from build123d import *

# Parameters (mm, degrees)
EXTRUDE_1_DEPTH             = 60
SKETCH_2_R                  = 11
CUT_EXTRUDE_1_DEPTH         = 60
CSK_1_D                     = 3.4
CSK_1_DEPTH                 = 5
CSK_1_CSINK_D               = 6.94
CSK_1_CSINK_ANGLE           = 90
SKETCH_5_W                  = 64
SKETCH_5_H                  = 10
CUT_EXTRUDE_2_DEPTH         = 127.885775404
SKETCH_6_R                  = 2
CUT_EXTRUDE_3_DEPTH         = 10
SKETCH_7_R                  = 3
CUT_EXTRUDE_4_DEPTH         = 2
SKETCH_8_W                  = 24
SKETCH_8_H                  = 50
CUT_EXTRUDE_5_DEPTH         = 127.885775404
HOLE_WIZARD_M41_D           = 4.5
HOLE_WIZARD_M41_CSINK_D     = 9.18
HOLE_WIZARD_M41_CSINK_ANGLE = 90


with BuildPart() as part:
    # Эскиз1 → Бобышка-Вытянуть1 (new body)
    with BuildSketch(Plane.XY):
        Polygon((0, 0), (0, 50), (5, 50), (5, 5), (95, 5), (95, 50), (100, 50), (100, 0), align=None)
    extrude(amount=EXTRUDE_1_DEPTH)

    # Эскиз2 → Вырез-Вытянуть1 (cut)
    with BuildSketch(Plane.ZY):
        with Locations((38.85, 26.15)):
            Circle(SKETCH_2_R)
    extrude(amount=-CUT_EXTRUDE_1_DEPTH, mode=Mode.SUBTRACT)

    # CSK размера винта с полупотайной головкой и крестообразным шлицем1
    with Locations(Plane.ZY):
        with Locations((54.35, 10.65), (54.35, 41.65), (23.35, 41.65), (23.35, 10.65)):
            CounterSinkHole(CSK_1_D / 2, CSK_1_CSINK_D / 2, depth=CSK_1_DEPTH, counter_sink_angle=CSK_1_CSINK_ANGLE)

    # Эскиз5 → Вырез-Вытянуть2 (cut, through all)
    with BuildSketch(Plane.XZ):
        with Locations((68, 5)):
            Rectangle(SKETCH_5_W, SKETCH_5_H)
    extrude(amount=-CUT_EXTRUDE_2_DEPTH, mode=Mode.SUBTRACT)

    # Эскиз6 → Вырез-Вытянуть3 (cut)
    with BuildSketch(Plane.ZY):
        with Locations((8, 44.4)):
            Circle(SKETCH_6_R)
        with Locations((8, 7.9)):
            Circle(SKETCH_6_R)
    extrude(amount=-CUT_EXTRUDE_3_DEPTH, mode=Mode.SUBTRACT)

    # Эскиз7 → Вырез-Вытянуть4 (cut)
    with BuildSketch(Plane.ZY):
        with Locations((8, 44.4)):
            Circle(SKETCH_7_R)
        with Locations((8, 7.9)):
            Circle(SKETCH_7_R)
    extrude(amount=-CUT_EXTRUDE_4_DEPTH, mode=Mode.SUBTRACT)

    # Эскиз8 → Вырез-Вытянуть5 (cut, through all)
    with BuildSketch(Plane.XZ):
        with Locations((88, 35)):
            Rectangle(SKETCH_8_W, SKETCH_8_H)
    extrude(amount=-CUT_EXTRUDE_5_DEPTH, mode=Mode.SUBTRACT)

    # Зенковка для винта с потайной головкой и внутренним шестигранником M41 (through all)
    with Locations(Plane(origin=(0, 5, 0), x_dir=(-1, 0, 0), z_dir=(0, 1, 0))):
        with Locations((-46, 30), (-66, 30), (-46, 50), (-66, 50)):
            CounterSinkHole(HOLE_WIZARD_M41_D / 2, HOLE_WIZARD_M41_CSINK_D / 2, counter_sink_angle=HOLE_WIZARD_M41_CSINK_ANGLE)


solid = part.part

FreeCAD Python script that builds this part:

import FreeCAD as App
import Part
import Sketcher
from FreeCAD import Vector

doc = App.newDocument("Part")
body = doc.addObject("PartDesign::Body", "Body")

# Sketch on XY plane
sketch1 = body.newObject("Sketcher::SketchObject", "Sketch")
sketch1.AttachmentSupport = (doc.getObject("XY_Plane"), [""])
sketch1.MapMode = "FlatFace"
sketch1.addGeometry([
    Part.LineSegment(Vector(0, 50, 0), Vector(0, 0, 0)),  # 0
    Part.LineSegment(Vector(0, 0, 0), Vector(100, 0, 0)),  # 1
    Part.LineSegment(Vector(100, 0, 0), Vector(100, 50, 0)),  # 2
    Part.LineSegment(Vector(100, 50, 0), Vector(95, 50, 0)),  # 3
    Part.LineSegment(Vector(95, 50, 0), Vector(95, 5, 0)),  # 4
    Part.LineSegment(Vector(95, 5, 0), Vector(5, 5, 0)),  # 5
    Part.LineSegment(Vector(5, 5, 0), Vector(5, 50, 0)),  # 6
    Part.LineSegment(Vector(5, 50, 0), Vector(0, 50, 0)),  # 7
], False)
sketch1.addConstraint([
    Sketcher.Constraint("Coincident", 0, 2, 1, 1),
    Sketcher.Constraint("Coincident", 1, 2, 2, 1),
    Sketcher.Constraint("Coincident", 2, 2, 3, 1),
    Sketcher.Constraint("Coincident", 3, 2, 4, 1),
    Sketcher.Constraint("Coincident", 4, 2, 5, 1),
    Sketcher.Constraint("Coincident", 5, 2, 6, 1),
    Sketcher.Constraint("Coincident", 6, 2, 7, 1),
    Sketcher.Constraint("Coincident", 7, 2, 0, 1),
    Sketcher.Constraint("Vertical", 0),
    Sketcher.Constraint("Horizontal", 1),
    Sketcher.Constraint("Vertical", 2),
    Sketcher.Constraint("Horizontal", 3),
    Sketcher.Constraint("Vertical", 4),
    Sketcher.Constraint("Horizontal", 5),
    Sketcher.Constraint("Vertical", 6),
    Sketcher.Constraint("Horizontal", 7),
    Sketcher.Constraint("Coincident", 0, 2, -1, 1),
    Sketcher.Constraint("Horizontal", 3, 2, 6, 2),
    Sketcher.Constraint("Equal", 3, 7),
    Sketcher.Constraint("DistanceX", 1, 1, 1, 2, 100.0),
    Sketcher.Constraint("DistanceX", 3, 2, 3, 1, 5.0),
    Sketcher.Constraint("DistanceY", 0, 2, 0, 1, 50.0),
    Sketcher.Constraint("DistanceY", 4, 2, 4, 1, 45.0),
])
pad1 = body.newObject("PartDesign::Pad", "Pad")
pad1.Profile = sketch1
pad1.Length = 60

# Sketch on YZ plane
sketch2 = body.newObject("Sketcher::SketchObject", "Sketch001")
sketch2.AttachmentSupport = (doc.getObject("YZ_Plane"), [""])
sketch2.MapMode = "FlatFace"
sketch2.addGeometry(Part.Circle(Vector(26.15, 38.85, 0), Vector(0, 0, 1), 11), False)
sketch2.addConstraint([
    Sketcher.Constraint("Diameter", 0, 22.0),
    Sketcher.Constraint("DistanceX", -1, 1, 0, 3, 26.15),
    Sketcher.Constraint("DistanceY", -1, 1, 0, 3, 38.85),
])
pocket1 = body.newObject("PartDesign::Pocket", "Pocket")
pocket1.Profile = sketch2
pocket1.Length = 60
pocket1.Reversed = True

# Sketch on YZ plane
sketch3 = body.newObject("Sketcher::SketchObject", "Sketch002")
sketch3.AttachmentSupport = (doc.getObject("YZ_Plane"), [""])
sketch3.MapMode = "FlatFace"
sketch3.addGeometry([
    Part.Circle(Vector(10.65, 54.35, 0), Vector(0, 0, 1), 1.7),
    Part.Circle(Vector(41.65, 54.35, 0), Vector(0, 0, 1), 1.7),
    Part.Circle(Vector(41.65, 23.35, 0), Vector(0, 0, 1), 1.7),
    Part.Circle(Vector(10.65, 23.35, 0), Vector(0, 0, 1), 1.7),
], False)
sketch3.addConstraint([
    Sketcher.Constraint("Equal", 0, 1),
    Sketcher.Constraint("Equal", 1, 2),
    Sketcher.Constraint("Equal", 2, 3),
    Sketcher.Constraint("Horizontal", 0, 3, 1, 3),
    Sketcher.Constraint("Horizontal", 2, 3, 3, 3),
    Sketcher.Constraint("Vertical", 1, 3, 2, 3),
    Sketcher.Constraint("Vertical", 0, 3, 3, 3),
    Sketcher.Constraint("Diameter", 0, 3.4),
    Sketcher.Constraint("DistanceX", 0, 3, 1, 3, 31.0),
    Sketcher.Constraint("DistanceY", 2, 3, 1, 3, 31.0),
    Sketcher.Constraint("DistanceX", -1, 1, 0, 3, 10.65),
    Sketcher.Constraint("DistanceY", -1, 1, 0, 3, 54.35),
])
doc.recompute()
hole = body.newObject("PartDesign::Hole", "Hole")
hole.Profile = sketch3
hole.ThreadType = "None"
hole.Diameter = 3.4
hole.DepthType = "Dimension"
hole.Depth = 5
hole.DrillPoint = "Flat"
hole.HoleCutType = "Countersink"
hole.HoleCutDiameter = 6.94
hole.HoleCutCountersinkAngle = 90
hole.Reversed = True

# Sketch on XZ plane
sketch4 = body.newObject("Sketcher::SketchObject", "Sketch003")
sketch4.AttachmentSupport = (doc.getObject("XZ_Plane"), [""])
sketch4.MapMode = "FlatFace"
sketch4.addGeometry([
    Part.LineSegment(Vector(36, 10, 0), Vector(36, 0, 0)),
    Part.LineSegment(Vector(36, 0, 0), Vector(100, 0, 0)),
    Part.LineSegment(Vector(100, 0, 0), Vector(100, 10, 0)),
    Part.LineSegment(Vector(100, 10, 0), Vector(36, 10, 0)),
], False)
sketch4.addConstraint([
    Sketcher.Constraint("Coincident", 0, 2, 1, 1),
    Sketcher.Constraint("Coincident", 1, 2, 2, 1),
    Sketcher.Constraint("Coincident", 2, 2, 3, 1),
    Sketcher.Constraint("Coincident", 3, 2, 0, 1),
    Sketcher.Constraint("Vertical", 0),
    Sketcher.Constraint("Horizontal", 1),
    Sketcher.Constraint("Vertical", 2),
    Sketcher.Constraint("Horizontal", 3),
    Sketcher.Constraint("PointOnObject", 0, 2, -1),
    Sketcher.Constraint("DistanceX", 1, 1, 1, 2, 64.0),
    Sketcher.Constraint("DistanceY", 0, 2, 0, 1, 10.0),
    Sketcher.Constraint("DistanceX", -1, 1, 0, 2, 36.0),
])
pocket2 = body.newObject("PartDesign::Pocket", "Pocket001")
pocket2.Profile = sketch4
pocket2.Type = "ThroughAll"

# Sketch on YZ plane
sketch5 = body.newObject("Sketcher::SketchObject", "Sketch004")
sketch5.AttachmentSupport = (doc.getObject("YZ_Plane"), [""])
sketch5.MapMode = "FlatFace"
sketch5.addGeometry([
    Part.Circle(Vector(44.4, 8, 0), Vector(0, 0, 1), 2),
    Part.Circle(Vector(7.9, 8, 0), Vector(0, 0, 1), 2),
], False)
sketch5.addConstraint([
    Sketcher.Constraint("Equal", 0, 1),
    Sketcher.Constraint("Horizontal", 0, 3, 1, 3),
    Sketcher.Constraint("Diameter", 0, 4.0),
    Sketcher.Constraint("DistanceY", -1, 1, 0, 3, 8.0),
    Sketcher.Constraint("DistanceX", -1, 1, 0, 3, 44.4),
    Sketcher.Constraint("DistanceX", -1, 1, 1, 3, 7.9),
])
pocket3 = body.newObject("PartDesign::Pocket", "Pocket002")
pocket3.Profile = sketch5
pocket3.Length = 10
pocket3.Reversed = True

# Sketch on YZ plane
sketch6 = body.newObject("Sketcher::SketchObject", "Sketch005")
sketch6.AttachmentSupport = (doc.getObject("YZ_Plane"), [""])
sketch6.MapMode = "FlatFace"
sketch6.addGeometry([
    Part.Circle(Vector(44.4, 8, 0), Vector(0, 0, 1), 3),
    Part.Circle(Vector(7.9, 8, 0), Vector(0, 0, 1), 3),
], False)
sketch6.addConstraint([
    Sketcher.Constraint("Equal", 0, 1),
    Sketcher.Constraint("Horizontal", 0, 3, 1, 3),
    Sketcher.Constraint("Diameter", 0, 6.0),
    Sketcher.Constraint("DistanceY", -1, 1, 0, 3, 8.0),
    Sketcher.Constraint("DistanceX", -1, 1, 0, 3, 44.4),
    Sketcher.Constraint("DistanceX", -1, 1, 1, 3, 7.9),
])
pocket4 = body.newObject("PartDesign::Pocket", "Pocket003")
pocket4.Profile = sketch6
pocket4.Length = 2
pocket4.Reversed = True

# Sketch on XZ plane
sketch7 = body.newObject("Sketcher::SketchObject", "Sketch006")
sketch7.AttachmentSupport = (doc.getObject("XZ_Plane"), [""])
sketch7.MapMode = "FlatFace"
sketch7.addGeometry([
    Part.LineSegment(Vector(76, 60, 0), Vector(76, 10, 0)),
    Part.LineSegment(Vector(76, 10, 0), Vector(100, 10, 0)),
    Part.LineSegment(Vector(100, 10, 0), Vector(100, 60, 0)),
    Part.LineSegment(Vector(100, 60, 0), Vector(76, 60, 0)),
], False)
sketch7.addConstraint([
    Sketcher.Constraint("Coincident", 0, 2, 1, 1),
    Sketcher.Constraint("Coincident", 1, 2, 2, 1),
    Sketcher.Constraint("Coincident", 2, 2, 3, 1),
    Sketcher.Constraint("Coincident", 3, 2, 0, 1),
    Sketcher.Constraint("Vertical", 0),
    Sketcher.Constraint("Horizontal", 1),
    Sketcher.Constraint("Vertical", 2),
    Sketcher.Constraint("Horizontal", 3),
    Sketcher.Constraint("DistanceX", 1, 1, 1, 2, 24.0),
    Sketcher.Constraint("DistanceY", 0, 2, 0, 1, 50.0),
    Sketcher.Constraint("DistanceX", -1, 1, 0, 2, 76.0),
    Sketcher.Constraint("DistanceY", -1, 1, 0, 2, 10.0),
])
pocket5 = body.newObject("PartDesign::Pocket", "Pocket004")
pocket5.Profile = sketch7
pocket5.Type = "ThroughAll"

# Sketch on XZ plane
sketch8 = body.newObject("Sketcher::SketchObject", "Sketch007")
sketch8.AttachmentSupport = (doc.getObject("XZ_Plane"), [""])
sketch8.MapMode = "FlatFace"
sketch8.AttachmentOffset = App.Placement(Vector(0, 0, -5), App.Rotation())
sketch8.addGeometry([
    Part.Circle(Vector(46, 30, 0), Vector(0, 0, 1), 2.25),
    Part.Circle(Vector(66, 30, 0), Vector(0, 0, 1), 2.25),
    Part.Circle(Vector(46, 50, 0), Vector(0, 0, 1), 2.25),
    Part.Circle(Vector(66, 50, 0), Vector(0, 0, 1), 2.25),
], False)
sketch8.addConstraint([
    Sketcher.Constraint("Equal", 0, 1),
    Sketcher.Constraint("Equal", 1, 2),
    Sketcher.Constraint("Equal", 2, 3),
    Sketcher.Constraint("Horizontal", 0, 3, 1, 3),
    Sketcher.Constraint("Horizontal", 2, 3, 3, 3),
    Sketcher.Constraint("Vertical", 0, 3, 2, 3),
    Sketcher.Constraint("Vertical", 1, 3, 3, 3),
    Sketcher.Constraint("Diameter", 0, 4.5),
    Sketcher.Constraint("DistanceX", -1, 1, 0, 3, 46.0),
    Sketcher.Constraint("DistanceY", -1, 1, 0, 3, 30.0),
    Sketcher.Constraint("DistanceX", -1, 1, 1, 3, 66.0),
    Sketcher.Constraint("DistanceY", -1, 1, 2, 3, 50.0),
])
doc.recompute()
hole2 = body.newObject("PartDesign::Hole", "Hole001")
hole2.Profile = sketch8
hole2.ThreadType = "None"
hole2.Diameter = 4.5
hole2.DepthType = "ThroughAll"
hole2.HoleCutType = "Countersink"
hole2.HoleCutDiameter = 9.18
hole2.HoleCutCountersinkAngle = 90
hole2.Reversed = True

doc.recompute()
